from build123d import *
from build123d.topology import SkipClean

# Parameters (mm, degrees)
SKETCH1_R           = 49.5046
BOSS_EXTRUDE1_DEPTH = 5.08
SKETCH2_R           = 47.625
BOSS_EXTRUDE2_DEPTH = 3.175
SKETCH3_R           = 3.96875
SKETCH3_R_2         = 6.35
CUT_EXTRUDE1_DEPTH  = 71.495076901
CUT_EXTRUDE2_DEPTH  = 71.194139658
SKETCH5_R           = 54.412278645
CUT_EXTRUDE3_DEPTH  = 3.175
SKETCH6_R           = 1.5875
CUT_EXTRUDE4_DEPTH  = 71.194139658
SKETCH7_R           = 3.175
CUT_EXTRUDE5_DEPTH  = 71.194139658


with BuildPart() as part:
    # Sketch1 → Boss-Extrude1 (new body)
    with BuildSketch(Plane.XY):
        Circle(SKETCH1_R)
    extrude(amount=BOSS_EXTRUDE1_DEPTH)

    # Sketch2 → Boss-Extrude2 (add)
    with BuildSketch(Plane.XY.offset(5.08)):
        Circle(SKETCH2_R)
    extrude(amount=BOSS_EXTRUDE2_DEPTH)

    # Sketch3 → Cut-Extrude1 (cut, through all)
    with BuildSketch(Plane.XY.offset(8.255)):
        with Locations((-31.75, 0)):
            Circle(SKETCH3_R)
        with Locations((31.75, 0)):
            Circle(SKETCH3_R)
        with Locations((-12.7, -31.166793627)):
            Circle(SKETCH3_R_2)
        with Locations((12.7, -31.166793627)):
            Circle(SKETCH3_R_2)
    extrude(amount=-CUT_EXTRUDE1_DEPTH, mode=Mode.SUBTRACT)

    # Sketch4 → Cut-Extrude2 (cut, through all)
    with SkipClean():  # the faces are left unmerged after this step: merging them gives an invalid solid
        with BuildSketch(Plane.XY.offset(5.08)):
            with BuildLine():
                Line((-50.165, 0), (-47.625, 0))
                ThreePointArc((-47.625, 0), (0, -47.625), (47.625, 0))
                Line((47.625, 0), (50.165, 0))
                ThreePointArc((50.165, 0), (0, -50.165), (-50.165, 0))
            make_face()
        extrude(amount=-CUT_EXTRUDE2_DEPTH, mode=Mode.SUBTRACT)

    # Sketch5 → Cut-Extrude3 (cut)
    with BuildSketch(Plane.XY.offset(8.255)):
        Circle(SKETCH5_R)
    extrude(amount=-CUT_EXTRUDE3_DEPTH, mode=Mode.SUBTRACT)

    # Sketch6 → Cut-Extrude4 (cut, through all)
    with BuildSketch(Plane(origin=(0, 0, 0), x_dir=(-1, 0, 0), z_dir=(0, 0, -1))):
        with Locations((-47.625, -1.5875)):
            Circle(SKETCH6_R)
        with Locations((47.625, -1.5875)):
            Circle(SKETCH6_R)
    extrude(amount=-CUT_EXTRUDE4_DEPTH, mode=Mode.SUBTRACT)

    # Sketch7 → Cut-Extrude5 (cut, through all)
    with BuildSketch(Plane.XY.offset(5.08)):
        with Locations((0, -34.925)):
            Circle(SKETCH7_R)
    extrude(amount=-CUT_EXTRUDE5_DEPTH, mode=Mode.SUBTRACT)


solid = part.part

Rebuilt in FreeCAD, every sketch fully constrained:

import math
import FreeCAD as App
import Part
import Sketcher
from FreeCAD import Vector
Q = App.Units.Quantity

doc = App.newDocument("Part")
params = doc.addObject("Spreadsheet::Sheet", "Params")
for row, (alias, value) in enumerate([
    ("sketch1_diameter", "3.898 in"),
    ("pad1_length", "0.2 in"),
    ("sketch2_diameter", "3.75 in"),
    ("pad2_length", "0.125 in"),
    ("sketch3_diameter", "0.5 in"),
    ("sketch3_diameter2", "0.3125 in"),
    ("sketch4_width", "0.1 in"),
    ("sketch4_radius", "1.975 in"),
    ("pocket3_length", "0.125 in"),
    ("sketch6_diameter", "0.125 in"),
    ("sketch7_diameter", "0.25 in"),
], start=1):
    params.set(f"A{row}", alias)
    params.set(f"B{row}", "=" + value)
    params.setAlias(f"B{row}", alias)

body = doc.addObject("PartDesign::Body", "Body")

# Sketch on XY plane
sketch1 = body.newObject("Sketcher::SketchObject", "Sketch")
sketch1.AttachmentSupport = (doc.getObject("XY_Plane"), [""])
sketch1.MapMode = "FlatFace"
sketch1.addGeometry(Part.Circle(Vector(0, 0, 0), Vector(0, 0, 1), 49.5046), False)
sketch1.addConstraint([
    Sketcher.Constraint("Coincident", 0, 3, -1, 1),
    Sketcher.Constraint("Diameter", 0, Q("3.898 in")),
])
sketch1.setExpression("Constraints[1]", "Params.sketch1_diameter")
pad1 = body.newObject("PartDesign::Pad", "Pad")
pad1.Profile = sketch1
pad1.setExpression("Length", "Params.pad1_length")

# Sketch on XY plane
sketch2 = body.newObject("Sketcher::SketchObject", "Sketch001")
sketch2.AttachmentSupport = (doc.getObject("XY_Plane"), [""])
sketch2.MapMode = "FlatFace"
sketch2.AttachmentOffset = App.Placement(Vector(0, 0, 0.2 * 25.4), App.Rotation())
sketch2.addGeometry(Part.Circle(Vector(0, 0, 0), Vector(0, 0, 1), 47.625), False)
sketch2.addConstraint([
    Sketcher.Constraint("Coincident", 0, 3, -1, 1),
    Sketcher.Constraint("Diameter", 0, Q("3.75 in")),
])
sketch2.setExpression("Constraints[1]", "Params.sketch2_diameter")
pad2 = body.newObject("PartDesign::Pad", "Pad001")
pad2.Profile = sketch2
pad2.setExpression("Length", "Params.pad2_length")

# Sketch on XY plane
sketch3 = body.newObject("Sketcher::SketchObject", "Sketch002")
sketch3.AttachmentSupport = (doc.getObject("XY_Plane"), [""])
sketch3.MapMode = "FlatFace"
sketch3.AttachmentOffset = App.Placement(Vector(0, 0, 0.325 * 25.4), App.Rotation())
sketch3.addGeometry([
    Part.Circle(Vector(-31.75, 0, 0), Vector(0, 0, 1), 3.96875),
    Part.Circle(Vector(31.75, 0, 0), Vector(0, 0, 1), 3.96875),
    Part.Circle(Vector(-12.7, -31.166794, 0), Vector(0, 0, 1), 6.35),
    Part.Circle(Vector(12.7, -31.166794, 0), Vector(0, 0, 1), 6.35),
], False)
sketch3.addConstraint([
    Sketcher.Constraint("Equal", 0, 1),
    Sketcher.Constraint("Equal", 2, 3),
    Sketcher.Constraint("Symmetric", 0, 3, 1, 3, -1, 1),
    Sketcher.Constraint("Symmetric", 2, 3, 3, 3, -2),
    Sketcher.Constraint("PointOnObject", 0, 3, -1),
    Sketcher.Constraint("Diameter", 2, Q("0.5 in")),
    Sketcher.Constraint("Diameter", 0, Q("0.3125 in")),
    Sketcher.Constraint("DistanceX", 2, 3, 3, 3, Q("1 in")),
    Sketcher.Constraint("DistanceX", 0, 3, 1, 3, Q("2.5 in")),
    Sketcher.Constraint("DistanceY", 2, 3, -1, 1, 31.166794),
])
sketch3.setExpression("Constraints[5]", "Params.sketch3_diameter")
sketch3.setExpression("Constraints[6]", "Params.sketch3_diameter2")
pocket1 = body.newObject("PartDesign::Pocket", "Pocket")
pocket1.Profile = sketch3
pocket1.Type = "ThroughAll"

# Sketch on XY plane
sketch4 = body.newObject("Sketcher::SketchObject", "Sketch003")
sketch4.AttachmentSupport = (doc.getObject("XY_Plane"), [""])
sketch4.MapMode = "FlatFace"
sketch4.AttachmentOffset = App.Placement(Vector(0, 0, 0.2 * 25.4), App.Rotation())
sketch4.addGeometry([
    Part.LineSegment(Vector(-47.625, 0, 0), Vector(-50.165, 0, 0)),
    Part.ArcOfCircle(Part.Circle(Vector(0, 0, 0), Vector(0, 0, 1), 50.165), math.radians(180), math.radians(360)),
    Part.LineSegment(Vector(50.165, 0, 0), Vector(47.625, 0, 0)),
    Part.ArcOfCircle(Part.Circle(Vector(0, 0, 0), Vector(0, 0, 1), 47.625), math.radians(180), math.radians(360)),
], False)
sketch4.addConstraint([
    Sketcher.Constraint("Coincident", 0, 2, 1, 1),
    Sketcher.Constraint("Coincident", 1, 2, 2, 1),
    Sketcher.Constraint("Coincident", 2, 2, 3, 2),
    Sketcher.Constraint("Coincident", 3, 1, 0, 1),
    Sketcher.Constraint("Horizontal", 0),
    Sketcher.Constraint("Horizontal", 2),
    Sketcher.Constraint("Coincident", 1, 3, -1, 1),
    Sketcher.Constraint("Coincident", 3, 3, -1, 1),
    Sketcher.Constraint("PointOnObject", 0, 2, -1),
    Sketcher.Constraint("PointOnObject", 1, 2, -1),
    Sketcher.Constraint("DistanceX", 0, 2, 0, 1, Q("0.1 in")),
    Sketcher.Constraint("Radius", 1, Q("1.975 in")),
])
sketch4.setExpression("Constraints[10]", "Params.sketch4_width")
sketch4.setExpression("Constraints[11]", "Params.sketch4_radius")
pocket2 = body.newObject("PartDesign::Pocket", "Pocket001")
pocket2.Profile = sketch4
pocket2.Type = "ThroughAll"

# Sketch on XY plane
sketch5 = body.newObject("Sketcher::SketchObject", "Sketch004")
sketch5.AttachmentSupport = (doc.getObject("XY_Plane"), [""])
sketch5.MapMode = "FlatFace"
sketch5.AttachmentOffset = App.Placement(Vector(0, 0, 0.325 * 25.4), App.Rotation())
sketch5.addGeometry(Part.Circle(Vector(0, 0, 0), Vector(0, 0, 1), 54.412279), False)
sketch5.addConstraint([
    Sketcher.Constraint("Coincident", 0, 3, -1, 1),
    Sketcher.Constraint("Diameter", 0, 108.824557),
])
pocket3 = body.newObject("PartDesign::Pocket", "Pocket002")
pocket3.Profile = sketch5
pocket3.setExpression("Length", "Params.pocket3_length")

# Sketch on XY plane
sketch6 = body.newObject("Sketcher::SketchObject", "Sketch005")
sketch6.AttachmentSupport = (doc.getObject("XY_Plane"), [""])
sketch6.MapMode = "FlatFace"
sketch6.addGeometry([
    Part.Circle(Vector(47.625, -1.5875, 0), Vector(0, 0, 1), 1.5875),
    Part.Circle(Vector(-47.625, -1.5875, 0), Vector(0, 0, 1), 1.5875),
], False)
sketch6.addConstraint([
    Sketcher.Constraint("Equal", 0, 1),
    Sketcher.Constraint("Symmetric", 0, 3, 1, 3, -2),
    Sketcher.Constraint("Diameter", 0, Q("0.125 in")),
    Sketcher.Constraint("DistanceX", 1, 3, 0, 3, Q("3.75 in")),
    Sketcher.Constraint("DistanceY", 0, 3, -1, 1, Q("0.0625 in")),
])
sketch6.setExpression("Constraints[2]", "Params.sketch6_diameter")
pocket4 = body.newObject("PartDesign::Pocket", "Pocket003")
pocket4.Profile = sketch6
pocket4.Type = "ThroughAll"
pocket4.Reversed = True

# Sketch on XY plane
sketch7 = body.newObject("Sketcher::SketchObject", "Sketch006")
sketch7.AttachmentSupport = (doc.getObject("XY_Plane"), [""])
sketch7.MapMode = "FlatFace"
sketch7.AttachmentOffset = App.Placement(Vector(0, 0, 0.2 * 25.4), App.Rotation())
sketch7.addGeometry(Part.Circle(Vector(0, -34.925, 0), Vector(0, 0, 1), 3.175), False)
sketch7.addConstraint([
    Sketcher.Constraint("PointOnObject", 0, 3, -2),
    Sketcher.Constraint("Diameter", 0, Q("0.25 in")),
    Sketcher.Constraint("DistanceY", 0, 3, -1, 1, Q("1.375 in")),
])
sketch7.setExpression("Constraints[1]", "Params.sketch7_diameter")
pocket5 = body.newObject("PartDesign::Pocket", "Pocket004")
pocket5.Profile = sketch7
pocket5.Type = "ThroughAll"

doc.recompute()
